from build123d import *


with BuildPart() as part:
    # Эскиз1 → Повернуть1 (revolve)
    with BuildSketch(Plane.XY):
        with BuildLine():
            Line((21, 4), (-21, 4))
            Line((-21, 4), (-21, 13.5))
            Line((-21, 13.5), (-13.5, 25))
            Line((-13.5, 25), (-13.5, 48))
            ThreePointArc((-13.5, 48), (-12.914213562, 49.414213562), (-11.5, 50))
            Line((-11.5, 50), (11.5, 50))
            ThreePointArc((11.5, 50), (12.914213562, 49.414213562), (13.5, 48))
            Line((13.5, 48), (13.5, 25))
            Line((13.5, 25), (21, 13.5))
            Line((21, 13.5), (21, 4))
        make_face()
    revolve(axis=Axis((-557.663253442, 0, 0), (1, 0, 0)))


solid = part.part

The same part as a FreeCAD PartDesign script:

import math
import FreeCAD as App
import Part
import Sketcher

doc = App.newDocument("Part")
body = doc.addObject("PartDesign::Body", "Body")

# Sketch on XY plane
sketch1 = body.newObject("Sketcher::SketchObject", "Sketch")
sketch1.AttachmentSupport = (doc.getObject("XY_Plane"), [""])
sketch1.MapMode = "FlatFace"
sketch1.addGeometry([
    Part.LineSegment(App.Vector(-21, 4, 0), App.Vector(21, 4, 0)),  # 0
    Part.LineSegment(App.Vector(21, 4, 0), App.Vector(21, 13.5, 0)),  # 1
    Part.LineSegment(App.Vector(21, 13.5, 0), App.Vector(13.5, 25, 0)),  # 2
    Part.LineSegment(App.Vector(13.5, 25, 0), App.Vector(13.5, 48, 0)),  # 3
    Part.ArcOfCircle(Part.Circle(App.Vector(11.5, 48, 0), App.Vector(0, 0, 1), 2), math.radians(0), math.radians(90)),  # 4
    Part.LineSegment(App.Vector(11.5, 50, 0), App.Vector(-11.5, 50, 0)),  # 5
    Part.ArcOfCircle(Part.Circle(App.Vector(-11.5, 48, 0), App.Vector(0, 0, 1), 2), math.radians(90), math.radians(180)),  # 6
    Part.LineSegment(App.Vector(-13.5, 48, 0), App.Vector(-13.5, 25, 0)),  # 7
    Part.LineSegment(App.Vector(-13.5, 25, 0), App.Vector(-21, 13.5, 0)),  # 8
    Part.LineSegment(App.Vector(-21, 13.5, 0), App.Vector(-21, 4, 0)),  # 9
], False)
sketch1.addConstraint([
    Sketcher.Constraint("Coincident", 0, 2, 1, 1),
    Sketcher.Constraint("Coincident", 1, 2, 2, 1),
    Sketcher.Constraint("Coincident", 2, 2, 3, 1),
    Sketcher.Constraint("Tangent", 3, 2, 4, 1),
    Sketcher.Constraint("Tangent", 4, 2, 5, 1),
    Sketcher.Constraint("Tangent", 5, 2, 6, 1),
    Sketcher.Constraint("Tangent", 6, 2, 7, 1),
    Sketcher.Constraint("Coincident", 7, 2, 8, 1),
    Sketcher.Constraint("Coincident", 8, 2, 9, 1),
    Sketcher.Constraint("Coincident", 9, 2, 0, 1),
    Sketcher.Constraint("Horizontal", 0),
    Sketcher.Constraint("Vertical", 1),
    Sketcher.Constraint("Vertical", 3),
    Sketcher.Constraint("Horizontal", 5),
    Sketcher.Constraint("Vertical", 7),
    Sketcher.Constraint("Vertical", 9),
    Sketcher.Constraint("Equal", 4, 6),
    Sketcher.Constraint("Symmetric", 2, 2, 7, 2, -2),
    Sketcher.Constraint("Symmetric", 1, 2, 8, 2, -2),
    Sketcher.Constraint("Equal", 5, 3),
    Sketcher.Constraint("Radius", 4, 2.0),
    Sketcher.Constraint("DistanceX", 0, 1, 0, 2, 42.0),
    Sketcher.Constraint("DistanceX", 5, 2, 5, 1, 23.0),
    Sketcher.Constraint("DistanceY", 1, 1, 1, 2, 9.5),
    Sketcher.Constraint("DistanceY", -1, 1, 4, 3, 48.0),
    Sketcher.Constraint("DistanceY", -1, 1, 0, 2, 4.0),
])
revolution = body.newObject("PartDesign::Revolution", "Revolution")
revolution.Profile = sketch1
revolution.ReferenceAxis = (sketch1, ["H_Axis"])
revolution.Angle = 360

doc.recompute()
